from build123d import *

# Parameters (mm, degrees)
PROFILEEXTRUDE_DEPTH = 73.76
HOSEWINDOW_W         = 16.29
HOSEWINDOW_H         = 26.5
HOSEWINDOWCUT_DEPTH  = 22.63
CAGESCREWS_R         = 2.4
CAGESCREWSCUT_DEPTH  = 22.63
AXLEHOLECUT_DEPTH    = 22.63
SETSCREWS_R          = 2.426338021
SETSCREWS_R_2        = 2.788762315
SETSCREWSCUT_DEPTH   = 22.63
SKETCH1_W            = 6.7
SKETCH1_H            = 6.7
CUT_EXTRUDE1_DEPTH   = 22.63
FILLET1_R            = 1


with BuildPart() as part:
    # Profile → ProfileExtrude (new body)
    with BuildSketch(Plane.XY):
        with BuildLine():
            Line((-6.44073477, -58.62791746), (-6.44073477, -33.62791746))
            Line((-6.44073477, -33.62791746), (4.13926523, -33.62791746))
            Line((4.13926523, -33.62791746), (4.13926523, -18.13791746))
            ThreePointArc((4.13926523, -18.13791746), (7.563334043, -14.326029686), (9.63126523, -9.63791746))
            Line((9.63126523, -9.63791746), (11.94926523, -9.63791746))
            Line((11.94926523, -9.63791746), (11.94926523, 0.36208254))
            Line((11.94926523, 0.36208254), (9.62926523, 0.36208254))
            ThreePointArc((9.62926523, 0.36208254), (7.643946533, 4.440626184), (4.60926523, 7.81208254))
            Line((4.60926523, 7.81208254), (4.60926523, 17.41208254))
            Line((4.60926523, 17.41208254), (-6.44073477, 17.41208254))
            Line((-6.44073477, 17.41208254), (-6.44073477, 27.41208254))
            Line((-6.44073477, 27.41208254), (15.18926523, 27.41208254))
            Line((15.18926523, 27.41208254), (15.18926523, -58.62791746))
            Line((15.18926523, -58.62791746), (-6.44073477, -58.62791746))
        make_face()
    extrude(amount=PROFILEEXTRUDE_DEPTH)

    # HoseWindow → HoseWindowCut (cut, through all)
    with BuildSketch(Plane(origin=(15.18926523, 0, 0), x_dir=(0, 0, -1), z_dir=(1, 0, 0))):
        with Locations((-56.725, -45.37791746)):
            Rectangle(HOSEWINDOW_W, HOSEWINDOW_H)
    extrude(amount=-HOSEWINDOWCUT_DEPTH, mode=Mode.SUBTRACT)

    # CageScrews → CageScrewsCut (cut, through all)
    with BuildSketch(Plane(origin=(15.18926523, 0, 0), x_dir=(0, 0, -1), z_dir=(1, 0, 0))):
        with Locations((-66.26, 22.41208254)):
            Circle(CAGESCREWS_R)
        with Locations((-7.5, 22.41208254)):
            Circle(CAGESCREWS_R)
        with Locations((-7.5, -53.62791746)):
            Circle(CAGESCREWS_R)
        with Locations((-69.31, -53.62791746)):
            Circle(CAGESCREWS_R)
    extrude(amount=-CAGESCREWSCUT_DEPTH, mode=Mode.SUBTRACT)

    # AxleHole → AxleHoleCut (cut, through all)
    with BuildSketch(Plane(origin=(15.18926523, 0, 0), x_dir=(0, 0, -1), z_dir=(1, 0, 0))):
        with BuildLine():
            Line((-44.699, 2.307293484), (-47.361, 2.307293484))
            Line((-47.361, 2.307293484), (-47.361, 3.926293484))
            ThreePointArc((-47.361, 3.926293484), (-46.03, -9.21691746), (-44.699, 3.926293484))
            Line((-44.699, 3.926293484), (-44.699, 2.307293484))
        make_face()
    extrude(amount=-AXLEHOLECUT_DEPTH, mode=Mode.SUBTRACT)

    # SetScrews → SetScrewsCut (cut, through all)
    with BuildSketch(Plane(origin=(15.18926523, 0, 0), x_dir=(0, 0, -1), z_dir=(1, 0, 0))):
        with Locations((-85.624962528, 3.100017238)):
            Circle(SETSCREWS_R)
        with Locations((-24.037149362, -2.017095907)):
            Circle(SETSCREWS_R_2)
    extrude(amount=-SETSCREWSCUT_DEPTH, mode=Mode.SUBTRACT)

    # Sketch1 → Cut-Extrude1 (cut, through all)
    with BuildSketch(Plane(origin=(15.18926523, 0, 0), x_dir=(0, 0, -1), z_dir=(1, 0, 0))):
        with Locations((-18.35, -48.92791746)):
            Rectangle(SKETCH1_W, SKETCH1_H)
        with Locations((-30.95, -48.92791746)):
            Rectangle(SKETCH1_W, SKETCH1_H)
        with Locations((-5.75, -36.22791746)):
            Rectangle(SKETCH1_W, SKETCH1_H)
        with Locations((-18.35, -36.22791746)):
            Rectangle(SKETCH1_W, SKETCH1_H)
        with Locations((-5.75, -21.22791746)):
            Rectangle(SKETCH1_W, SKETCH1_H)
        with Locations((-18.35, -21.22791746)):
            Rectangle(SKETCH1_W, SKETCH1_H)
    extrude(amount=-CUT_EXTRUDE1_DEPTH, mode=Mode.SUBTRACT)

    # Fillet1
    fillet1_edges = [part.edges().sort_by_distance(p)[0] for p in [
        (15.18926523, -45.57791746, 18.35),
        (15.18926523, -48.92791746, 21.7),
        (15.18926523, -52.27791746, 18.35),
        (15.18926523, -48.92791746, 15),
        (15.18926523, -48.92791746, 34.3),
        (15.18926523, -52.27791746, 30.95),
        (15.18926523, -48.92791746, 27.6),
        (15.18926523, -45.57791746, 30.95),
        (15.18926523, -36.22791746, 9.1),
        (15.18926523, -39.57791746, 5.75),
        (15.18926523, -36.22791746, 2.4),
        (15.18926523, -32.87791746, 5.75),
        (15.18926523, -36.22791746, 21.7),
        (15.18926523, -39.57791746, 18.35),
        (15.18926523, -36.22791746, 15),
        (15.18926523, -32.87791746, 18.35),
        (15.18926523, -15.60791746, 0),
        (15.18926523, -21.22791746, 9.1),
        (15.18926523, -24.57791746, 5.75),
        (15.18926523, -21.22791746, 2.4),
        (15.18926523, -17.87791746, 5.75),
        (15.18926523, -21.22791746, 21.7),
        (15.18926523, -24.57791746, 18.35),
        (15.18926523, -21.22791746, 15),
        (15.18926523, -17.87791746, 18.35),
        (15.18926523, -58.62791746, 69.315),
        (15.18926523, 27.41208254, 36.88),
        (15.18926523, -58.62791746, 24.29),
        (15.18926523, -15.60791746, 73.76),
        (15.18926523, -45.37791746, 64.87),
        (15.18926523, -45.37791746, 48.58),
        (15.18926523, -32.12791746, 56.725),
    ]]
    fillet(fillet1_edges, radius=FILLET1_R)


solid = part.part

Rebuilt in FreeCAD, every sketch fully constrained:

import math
import FreeCAD as App
import Part
import Sketcher
from FreeCAD import Vector
Q = App.Units.Quantity


def edges_at(feature, points):
    """Names of the edges that pass closest to the given points."""
    edges = feature.Shape.Edges
    near = lambda p: min(range(len(edges)), key=lambda i: edges[i].distToShape(Part.Vertex(*p))[0])
    return sorted({f"Edge{near(p) + 1}" for p in points})


def add_polygon(sketch, points):
    """Adds a closed chain of lines whose ends are joined by coincident constraints."""
    first, n = sketch.GeometryCount, len(points)
    for a, b in zip(points, points[1:] + points[:1]):
        sketch.addGeometry(Part.LineSegment(App.Vector(*a, 0), App.Vector(*b, 0)), False)
    for i in range(n):
        sketch.addConstraint(Sketcher.Constraint("Coincident", first + i, 2, first + (i + 1) % n, 1))

doc = App.newDocument("Part")
body = doc.addObject("PartDesign::Body", "Body")

# Sketch on XY plane
sketch1 = doc.addObject("Sketcher::SketchObject", "Sketch")
body.addObject(sketch1)
sketch1.AttachmentSupport = (doc.XY_Plane, [""])
sketch1.MapMode = "FlatFace"
sketch1.addGeometry([
    Part.LineSegment(Vector(-6.4, -33.6, 0), Vector(-6.4, -58.6, 0)),  # 0
    Part.LineSegment(Vector(-6.4, -58.6, 0), Vector(15.2, -58.6, 0)),  # 1
    Part.LineSegment(Vector(15.2, -58.6, 0), Vector(15.2, 27.4, 0)),  # 2
    Part.LineSegment(Vector(15.2, 27.4, 0), Vector(-6.4, 27.4, 0)),  # 3
    Part.LineSegment(Vector(-6.4, 27.4, 0), Vector(-6.4, 17.4, 0)),  # 4
    Part.LineSegment(Vector(-6.4, 17.4, 0), Vector(4.6, 17.4, 0)),  # 5
    Part.LineSegment(Vector(4.6, 17.4, 0), Vector(4.6, 7.8, 0)),  # 6
    Part.ArcOfCircle(Part.Circle(Vector(-5.8, -4.6, 0), Vector(0, 0, 1), 16.3), math.radians(18), math.radians(50)),  # 7
    Part.LineSegment(Vector(9.6, 0.4, 0), Vector(11.9, 0.4, 0)),  # 8
    Part.LineSegment(Vector(11.9, 0.4, 0), Vector(11.9, -9.6, 0)),  # 9
    Part.LineSegment(Vector(11.9, -9.6, 0), Vector(9.6, -9.6, 0)),  # 10
    Part.ArcOfCircle(Part.Circle(Vector(-6.1, -5.5, 0), Vector(0, 0, 1), 16.3), math.radians(-51), math.radians(-15)),  # 11
    Part.LineSegment(Vector(4.1, -18.1, 0), Vector(4.1, -33.6, 0)),  # 12
    Part.LineSegment(Vector(4.1, -33.6, 0), Vector(-6.4, -33.6, 0)),  # 13
], False)
sketch1.addConstraint([
    Sketcher.Constraint("Coincident", 0, 2, 1, 1),
    Sketcher.Constraint("Coincident", 1, 2, 2, 1),
    Sketcher.Constraint("Coincident", 2, 2, 3, 1),
    Sketcher.Constraint("Coincident", 3, 2, 4, 1),
    Sketcher.Constraint("Coincident", 4, 2, 5, 1),
    Sketcher.Constraint("Coincident", 5, 2, 6, 1),
    Sketcher.Constraint("Coincident", 6, 2, 7, 2),
    Sketcher.Constraint("Coincident", 7, 1, 8, 1),
    Sketcher.Constraint("Coincident", 8, 2, 9, 1),
    Sketcher.Constraint("Coincident", 9, 2, 10, 1),
    Sketcher.Constraint("Coincident", 10, 2, 11, 2),
    Sketcher.Constraint("Coincident", 11, 1, 12, 1),
    Sketcher.Constraint("Coincident", 12, 2, 13, 1),
    Sketcher.Constraint("Coincident", 13, 2, 0, 1),
    Sketcher.Constraint("Vertical", 0),
    Sketcher.Constraint("Horizontal", 1),
    Sketcher.Constraint("Vertical", 2),
    Sketcher.Constraint("Horizontal", 3),
    Sketcher.Constraint("Vertical", 4),
    Sketcher.Constraint("Horizontal", 5),
    Sketcher.Constraint("Vertical", 6),
    Sketcher.Constraint("Horizontal", 8),
    Sketcher.Constraint("Vertical", 9),
    Sketcher.Constraint("Horizontal", 10),
    Sketcher.Constraint("Vertical", 12),
    Sketcher.Constraint("Horizontal", 13),
    Sketcher.Constraint("Equal", 7, 11),
    Sketcher.Constraint("Vertical", 0, 2, 3, 2),
    Sketcher.Constraint("Equal", 4, 9),
    Sketcher.Constraint("DistanceY", 0, 2, 0, 1, Q("25 mm")),
    Sketcher.Constraint("DistanceY", 4, 2, 4, 1, Q("10 mm")),
    Sketcher.Constraint("DistanceY", 6, 2, 6, 1, Q("9.6 mm")),
    Sketcher.Constraint("Radius", 7, Q("16.261 mm")),
    Sketcher.Constraint("DistanceX", 1, 1, 1, 2, Q("21.63 mm")),
    Sketcher.Constraint("DistanceX", 5, 1, 5, 2, Q("11.05 mm")),
    Sketcher.Constraint("DistanceX", 8, 1, 8, 2, Q("2.32 mm")),
    Sketcher.Constraint("DistanceX", 13, 2, 13, 1, Q("10.58 mm")),
    Sketcher.Constraint("DistanceY", 2, 1, 2, 2, Q("86.04 mm")),
    Sketcher.Constraint("DistanceY", 12, 2, 12, 1, Q("15.49 mm")),
    Sketcher.Constraint("DistanceY", 11, 1, 10, 2, Q("8.5 mm")),
    Sketcher.Constraint("DistanceX", 10, 2, 10, 1, Q("2.318 mm")),
    Sketcher.Constraint("DistanceX", 6, 2, 7, 1, Q("5.02 mm")),
    Sketcher.Constraint("DistanceX", 7, 3, -1, 1, Q("5.841302 mm")),
    Sketcher.Constraint("DistanceY", 7, 3, -1, 1, Q("4.646078 mm")),
])
pad1 = doc.addObject("PartDesign::Pad", "Pad")
body.addObject(pad1)
pad1.Profile = sketch1
pad1.Length = 73.76

# Sketch on YZ plane
sketch2 = doc.addObject("Sketcher::SketchObject", "Sketch001")
body.addObject(sketch2)
sketch2.AttachmentSupport = (doc.YZ_Plane, [""])
sketch2.MapMode = "FlatFace"
sketch2.AttachmentOffset = App.Placement(Vector(0, 0, 15.189265), App.Rotation())
add_polygon(sketch2, [(-32, 65), (-59, 65), (-59, 49), (-32, 49)])  # lines 0-3
sketch2.addConstraint([
    Sketcher.Constraint("Horizontal", 0),
    Sketcher.Constraint("Vertical", 1),
    Sketcher.Constraint("Horizontal", 2),
    Sketcher.Constraint("Vertical", 3),
    Sketcher.Constraint("DistanceX", 0, 2, 0, 1, Q("26.5 mm")),
    Sketcher.Constraint("DistanceY", 1, 2, 1, 1, Q("16.29 mm")),
    Sketcher.Constraint("DistanceY", -1, 1, 0, 2, Q("64.87 mm")),
    Sketcher.Constraint("DistanceX", 0, 2, -1, 1, Q("58.627917 mm")),
])
pocket1 = doc.addObject("PartDesign::Pocket", "Pocket")
body.addObject(pocket1)
pocket1.Profile = sketch2
pocket1.Type = "ThroughAll"

# Sketch on YZ plane
sketch3 = doc.addObject("Sketcher::SketchObject", "Sketch002")
body.addObject(sketch3)
sketch3.AttachmentSupport = (doc.YZ_Plane, [""])
sketch3.MapMode = "FlatFace"
sketch3.AttachmentOffset = App.Placement(Vector(0, 0, 15.189265), App.Rotation())
sketch3.addGeometry([
    Part.Circle(Vector(22.4, 66.3, 0), Vector(0, 0, 1), 2.4),
    Part.Circle(Vector(22.4, 7.5, 0), Vector(0, 0, 1), 2.4),
    Part.Circle(Vector(-53.6, 7.5, 0), Vector(0, 0, 1), 2.4),
    Part.Circle(Vector(-53.6, 69.3, 0), Vector(0, 0, 1), 2.4),
], False)
sketch3.addConstraint([
    Sketcher.Constraint("Equal", 0, 1),
    Sketcher.Constraint("Equal", 1, 2),
    Sketcher.Constraint("Equal", 2, 3),
    Sketcher.Constraint("Horizontal", 1, 3, 2, 3),
    Sketcher.Constraint("Vertical", 0, 3, 1, 3),
    Sketcher.Constraint("Vertical", 2, 3, 3, 3),
    Sketcher.Constraint("Diameter", 0, Q("4.8 mm")),
    Sketcher.Constraint("DistanceY", -1, 1, 1, 3, Q("7.5 mm")),
    Sketcher.Constraint("DistanceY", -1, 1, 0, 3, Q("66.26 mm")),
    Sketcher.Constraint("DistanceY", -1, 1, 3, 3, Q("69.31 mm")),
    Sketcher.Constraint("DistanceX", 2, 3, 1, 3, Q("76.04 mm")),
    Sketcher.Constraint("DistanceX", -1, 1, 0, 3, Q("22.412083 mm")),
])
pocket2 = doc.addObject("PartDesign::Pocket", "Pocket001")
body.addObject(pocket2)
pocket2.Profile = sketch3
pocket2.Type = "ThroughAll"

# Sketch on YZ plane
sketch4 = doc.addObject("Sketcher::SketchObject", "Sketch003")
body.addObject(sketch4)
sketch4.AttachmentSupport = (doc.YZ_Plane, [""])
sketch4.MapMode = "FlatFace"
sketch4.AttachmentOffset = App.Placement(Vector(0, 0, 15.189265), App.Rotation())
sketch4.addGeometry([
    Part.LineSegment(Vector(2.3, 44.7, 0), Vector(2.3, 47.4, 0)),
    Part.LineSegment(Vector(2.3, 47.4, 0), Vector(3.9, 47.4, 0)),
    Part.ArcOfCircle(Part.Circle(Vector(-2.6, 46, 0), Vector(0, 0, 1), 6.6), math.radians(12), math.radians(348)),
    Part.LineSegment(Vector(3.9, 44.7, 0), Vector(2.3, 44.7, 0)),
], False)
sketch4.addConstraint([
    Sketcher.Constraint("Coincident", 0, 2, 1, 1),
    Sketcher.Constraint("Coincident", 1, 2, 2, 1),
    Sketcher.Constraint("Coincident", 2, 2, 3, 1),
    Sketcher.Constraint("Coincident", 3, 2, 0, 1),
    Sketcher.Constraint("Vertical", 0),
    Sketcher.Constraint("Horizontal", 1),
    Sketcher.Constraint("Horizontal", 3),
    Sketcher.Constraint("Vertical", 1, 2, 2, 2),
    Sketcher.Constraint("Radius", 2, Q("6.639 mm")),
    Sketcher.Constraint("DistanceX", 1, 1, 1, 2, Q("1.619 mm")),
    Sketcher.Constraint("DistanceY", 0, 1, 0, 2, Q("2.662 mm")),
    Sketcher.Constraint("DistanceY", -1, 1, 2, 3, Q("46.03 mm")),
    Sketcher.Constraint("DistanceX", 2, 3, -1, 1, Q("2.577917 mm")),
])
pocket3 = doc.addObject("PartDesign::Pocket", "Pocket002")
body.addObject(pocket3)
pocket3.Profile = sketch4
pocket3.Type = "ThroughAll"

# Sketch on YZ plane
sketch5 = doc.addObject("Sketcher::SketchObject", "Sketch004")
body.addObject(sketch5)
sketch5.AttachmentSupport = (doc.YZ_Plane, [""])
sketch5.MapMode = "FlatFace"
sketch5.AttachmentOffset = App.Placement(Vector(0, 0, 15.189265), App.Rotation())
sketch5.addGeometry([
    Part.Circle(Vector(3.1, 85.6, 0), Vector(0, 0, 1), 2.4),
    Part.Circle(Vector(-2, 24, 0), Vector(0, 0, 1), 2.8),
], False)
sketch5.addConstraint([
    Sketcher.Constraint("Diameter", 0, Q("4.852676 mm")),
    Sketcher.Constraint("Diameter", 1, Q("5.577525 mm")),
    Sketcher.Constraint("DistanceY", -1, 1, 1, 3, Q("24.037149 mm")),
    Sketcher.Constraint("DistanceX", -1, 1, 0, 3, Q("3.100017 mm")),
    Sketcher.Constraint("DistanceY", -1, 1, 0, 3, Q("85.624963 mm")),
    Sketcher.Constraint("DistanceX", 1, 3, -1, 1, Q("2.017096 mm")),
])
pocket4 = doc.addObject("PartDesign::Pocket", "Pocket003")
body.addObject(pocket4)
pocket4.Profile = sketch5
pocket4.Type = "ThroughAll"

# Sketch on YZ plane
sketch6 = doc.addObject("Sketcher::SketchObject", "Sketch005")
body.addObject(sketch6)
sketch6.AttachmentSupport = (doc.YZ_Plane, [""])
sketch6.MapMode = "FlatFace"
sketch6.AttachmentOffset = App.Placement(Vector(0, 0, 15.189265), App.Rotation())
add_polygon(sketch6, [(-46, 22), (-52, 22), (-52, 15), (-46, 15)])  # lines 0-3
add_polygon(sketch6, [(-46, 34), (-52, 34), (-52, 28), (-46, 28)])  # lines 4-7
add_polygon(sketch6, [(-33, 9), (-40, 9), (-40, 2), (-33, 2)])  # lines 8-11
add_polygon(sketch6, [(-33, 22), (-40, 22), (-40, 15), (-33, 15)])  # lines 12-15
add_polygon(sketch6, [(-18, 9), (-25, 9), (-25, 2), (-18, 2)])  # lines 16-19
add_polygon(sketch6, [(-18, 22), (-25, 22), (-25, 15), (-18, 15)])  # lines 20-23
sketch6.addConstraint([
    Sketcher.Constraint("Horizontal", 0),
    Sketcher.Constraint("Vertical", 1),
    Sketcher.Constraint("Horizontal", 2),
    Sketcher.Constraint("Vertical", 3),
    Sketcher.Constraint("Horizontal", 4),
    Sketcher.Constraint("Vertical", 5),
    Sketcher.Constraint("Horizontal", 6),
    Sketcher.Constraint("Vertical", 7),
    Sketcher.Constraint("Horizontal", 8),
    Sketcher.Constraint("Vertical", 9),
    Sketcher.Constraint("Horizontal", 10),
    Sketcher.Constraint("Vertical", 11),
    Sketcher.Constraint("Horizontal", 12),
    Sketcher.Constraint("Vertical", 13),
    Sketcher.Constraint("Horizontal", 14),
    Sketcher.Constraint("Vertical", 15),
    Sketcher.Constraint("Horizontal", 16),
    Sketcher.Constraint("Vertical", 17),
    Sketcher.Constraint("Horizontal", 18),
    Sketcher.Constraint("Vertical", 19),
    Sketcher.Constraint("Horizontal", 20),
    Sketcher.Constraint("Vertical", 21),
    Sketcher.Constraint("Horizontal", 22),
    Sketcher.Constraint("Vertical", 23),
    Sketcher.Constraint("Horizontal", 3, 2, 12, 2),
    Sketcher.Constraint("Horizontal", 2, 2, 13, 2),
    Sketcher.Constraint("Horizontal", 11, 2, 16, 2),
    Sketcher.Constraint("Horizontal", 10, 2, 17, 2),
    Sketcher.Constraint("Horizontal", 15, 2, 20, 2),
    Sketcher.Constraint("Horizontal", 14, 2, 21, 2),
    Sketcher.Constraint("Vertical", 1, 2, 4, 2),
    Sketcher.Constraint("Vertical", 3, 2, 6, 2),
    Sketcher.Constraint("Vertical", 9, 2, 12, 2),
    Sketcher.Constraint("Vertical", 11, 2, 14, 2),
    Sketcher.Constraint("Vertical", 17, 2, 20, 2),
    Sketcher.Constraint("Vertical", 19, 2, 22, 2),
    Sketcher.Constraint("Equal", 6, 8),
    Sketcher.Constraint("Equal", 14, 16),
    Sketcher.Constraint("Equal", 22, 1),
    Sketcher.Constraint("Equal", 3, 5),
    Sketcher.Constraint("Equal", 7, 9),
    Sketcher.Constraint("DistanceX", 0, 2, 0, 1, Q("6.7 mm")),
    Sketcher.Constraint("DistanceY", -1, 1, 1, 2, Q("15 mm")),
    Sketcher.Constraint("DistanceX", 2, 2, 8, 2, Q("6 mm")),
    Sketcher.Constraint("DistanceX", 8, 2, 16, 2, Q("15 mm")),
    Sketcher.Constraint("DistanceY", -1, 1, 4, 2, Q("34.3 mm")),
    Sketcher.Constraint("DistanceY", -1, 1, 8, 2, Q("9.1 mm")),
    Sketcher.Constraint("DistanceX", 0, 2, -1, 1, Q("52.277917 mm")),
])
pocket5 = doc.addObject("PartDesign::Pocket", "Pocket004")
body.addObject(pocket5)
pocket5.Profile = sketch6
pocket5.Type = "ThroughAll"
doc.recompute()

fillet = doc.addObject("PartDesign::Fillet", "Fillet")
body.addObject(fillet)
fillet.Base = (pocket5, edges_at(pocket5, [
    (15.189, -45.578, 18.35),
    (15.189, -48.928, 21.7),
    (15.189, -52.278, 18.35),
    (15.189, -48.928, 15),
    (15.189, -48.928, 34.3),
    (15.189, -52.278, 30.95),
    (15.189, -48.928, 27.6),
    (15.189, -45.578, 30.95),
    (15.189, -36.228, 9.1),
    (15.189, -39.578, 5.75),
    (15.189, -36.228, 2.4),
    (15.189, -32.878, 5.75),
    (15.189, -36.228, 21.7),
    (15.189, -39.578, 18.35),
    (15.189, -36.228, 15),
    (15.189, -32.878, 18.35),
    (15.189, -15.608, 0),
    (15.189, -21.228, 9.1),
    (15.189, -24.578, 5.75),
    (15.189, -21.228, 2.4),
    (15.189, -17.878, 5.75),
    (15.189, -21.228, 21.7),
    (15.189, -24.578, 18.35),
    (15.189, -21.228, 15),
    (15.189, -17.878, 18.35),
    (15.189, -58.628, 69.315),
    (15.189, 27.412, 36.88),
    (15.189, -58.628, 24.29),
    (15.189, -15.608, 73.76),
    (15.189, -45.378, 64.87),
    (15.189, -45.378, 48.58),
    (15.189, -32.128, 56.725),
]))
fillet.Radius = 1

doc.recompute()
